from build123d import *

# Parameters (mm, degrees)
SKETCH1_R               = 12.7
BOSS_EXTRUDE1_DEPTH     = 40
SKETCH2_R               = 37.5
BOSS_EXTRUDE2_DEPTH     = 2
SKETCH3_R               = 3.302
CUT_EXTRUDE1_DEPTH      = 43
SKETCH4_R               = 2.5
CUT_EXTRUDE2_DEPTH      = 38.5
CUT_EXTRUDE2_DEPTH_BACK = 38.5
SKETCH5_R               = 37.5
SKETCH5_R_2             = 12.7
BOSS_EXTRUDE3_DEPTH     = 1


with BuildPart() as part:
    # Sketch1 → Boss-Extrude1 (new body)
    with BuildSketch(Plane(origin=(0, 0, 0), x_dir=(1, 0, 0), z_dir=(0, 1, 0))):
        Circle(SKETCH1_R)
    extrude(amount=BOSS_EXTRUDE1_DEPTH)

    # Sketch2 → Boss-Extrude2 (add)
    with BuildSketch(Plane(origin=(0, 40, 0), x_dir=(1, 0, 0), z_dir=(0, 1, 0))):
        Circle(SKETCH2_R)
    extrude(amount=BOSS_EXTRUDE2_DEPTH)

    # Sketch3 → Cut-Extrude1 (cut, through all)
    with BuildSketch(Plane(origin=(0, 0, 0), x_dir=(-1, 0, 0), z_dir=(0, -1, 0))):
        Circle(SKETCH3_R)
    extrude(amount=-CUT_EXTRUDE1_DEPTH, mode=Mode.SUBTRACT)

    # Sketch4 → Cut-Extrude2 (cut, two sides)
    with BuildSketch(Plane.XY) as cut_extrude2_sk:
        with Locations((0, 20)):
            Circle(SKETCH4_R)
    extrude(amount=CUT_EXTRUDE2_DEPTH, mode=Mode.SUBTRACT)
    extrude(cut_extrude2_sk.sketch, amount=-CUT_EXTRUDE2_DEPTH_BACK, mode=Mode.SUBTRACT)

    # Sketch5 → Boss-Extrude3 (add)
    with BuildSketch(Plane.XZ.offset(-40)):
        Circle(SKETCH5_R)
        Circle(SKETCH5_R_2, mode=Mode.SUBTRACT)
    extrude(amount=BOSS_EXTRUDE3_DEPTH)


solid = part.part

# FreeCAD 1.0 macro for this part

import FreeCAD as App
import Part
import Sketcher
Q = App.Units.Quantity

doc = App.newDocument("Part")
body = doc.addObject("PartDesign::Body", "Body")

# Sketch on XZ plane
sketch1 = doc.addObject("Sketcher::SketchObject", "Sketch")
body.addObject(sketch1)
sketch1.AttachmentSupport = (doc.XZ_Plane, [""])
sketch1.MapMode = "FlatFace"
sketch1.addGeometry(Part.Circle(App.Vector(0, 0, 0), App.Vector(0, 0, 1), 13), False)
sketch1.addConstraint([
    Sketcher.Constraint("Coincident", 0, 3, -1, 1),
    Sketcher.Constraint("Diameter", 0, Q("25.4 mm")),
])
pad1 = doc.addObject("PartDesign::Pad", "Pad")
body.addObject(pad1)
pad1.Profile = sketch1
pad1.Length = 40
pad1.Reversed = True

# Sketch on XZ plane
sketch2 = doc.addObject("Sketcher::SketchObject", "Sketch001")
body.addObject(sketch2)
sketch2.AttachmentSupport = (doc.XZ_Plane, [""])
sketch2.MapMode = "FlatFace"
sketch2.AttachmentOffset = App.Placement(App.Vector(0, 0, -40), App.Rotation())
sketch2.addGeometry(Part.Circle(App.Vector(0, 0, 0), App.Vector(0, 0, 1), 38), False)
sketch2.addConstraint([
    Sketcher.Constraint("Coincident", 0, 3, -1, 1),
    Sketcher.Constraint("Diameter", 0, Q("75 mm")),
])
pad2 = doc.addObject("PartDesign::Pad", "Pad001")
body.addObject(pad2)
pad2.Profile = sketch2
pad2.Length = 2
pad2.Reversed = True

# Sketch on XZ plane
sketch3 = doc.addObject("Sketcher::SketchObject", "Sketch002")
body.addObject(sketch3)
sketch3.AttachmentSupport = (doc.XZ_Plane, [""])
sketch3.MapMode = "FlatFace"
sketch3.addGeometry(Part.Circle(App.Vector(0, 0, 0), App.Vector(0, 0, 1), 3.3), False)
sketch3.addConstraint([
    Sketcher.Constraint("Coincident", 0, 3, -1, 1),
    Sketcher.Constraint("Diameter", 0, Q("6.604 mm")),
])
pocket1 = doc.addObject("PartDesign::Pocket", "Pocket")
body.addObject(pocket1)
pocket1.Profile = sketch3
pocket1.Type = "ThroughAll"

# Sketch on XY plane
sketch4 = doc.addObject("Sketcher::SketchObject", "Sketch003")
body.addObject(sketch4)
sketch4.AttachmentSupport = (doc.XY_Plane, [""])
sketch4.MapMode = "FlatFace"
sketch4.addGeometry(Part.Circle(App.Vector(0, 20, 0), App.Vector(0, 0, 1), 2.5), False)
sketch4.addConstraint([
    Sketcher.Constraint("PointOnObject", 0, 3, -2),
    Sketcher.Constraint("Diameter", 0, Q("5 mm")),
    Sketcher.Constraint("DistanceY", -1, 1, 0, 3, Q("20 mm")),
])
pocket2 = doc.addObject("PartDesign::Pocket", "Pocket001")
body.addObject(pocket2)
pocket2.Profile = sketch4
pocket2.Type = "ThroughAll"
pocket2.Midplane = True

# Sketch on XZ plane
sketch5 = doc.addObject("Sketcher::SketchObject", "Sketch004")
body.addObject(sketch5)
sketch5.AttachmentSupport = (doc.XZ_Plane, [""])
sketch5.MapMode = "FlatFace"
sketch5.AttachmentOffset = App.Placement(App.Vector(0, 0, -40), App.Rotation())
sketch5.addGeometry([
    Part.Circle(App.Vector(0, 0, 0), App.Vector(0, 0, 1), 38),
    Part.Circle(App.Vector(0, 0, 0), App.Vector(0, 0, 1), 13),
], False)
sketch5.addConstraint([
    Sketcher.Constraint("Coincident", 0, 3, -1, 1),
    Sketcher.Constraint("Coincident", 1, 3, -1, 1),
    Sketcher.Constraint("Diameter", 0, Q("75 mm")),
    Sketcher.Constraint("Diameter", 1, Q("25.4 mm")),
])
pad3 = doc.addObject("PartDesign::Pad", "Pad002")
body.addObject(pad3)
pad3.Profile = sketch5
pad3.Length = 1

doc.recompute()
